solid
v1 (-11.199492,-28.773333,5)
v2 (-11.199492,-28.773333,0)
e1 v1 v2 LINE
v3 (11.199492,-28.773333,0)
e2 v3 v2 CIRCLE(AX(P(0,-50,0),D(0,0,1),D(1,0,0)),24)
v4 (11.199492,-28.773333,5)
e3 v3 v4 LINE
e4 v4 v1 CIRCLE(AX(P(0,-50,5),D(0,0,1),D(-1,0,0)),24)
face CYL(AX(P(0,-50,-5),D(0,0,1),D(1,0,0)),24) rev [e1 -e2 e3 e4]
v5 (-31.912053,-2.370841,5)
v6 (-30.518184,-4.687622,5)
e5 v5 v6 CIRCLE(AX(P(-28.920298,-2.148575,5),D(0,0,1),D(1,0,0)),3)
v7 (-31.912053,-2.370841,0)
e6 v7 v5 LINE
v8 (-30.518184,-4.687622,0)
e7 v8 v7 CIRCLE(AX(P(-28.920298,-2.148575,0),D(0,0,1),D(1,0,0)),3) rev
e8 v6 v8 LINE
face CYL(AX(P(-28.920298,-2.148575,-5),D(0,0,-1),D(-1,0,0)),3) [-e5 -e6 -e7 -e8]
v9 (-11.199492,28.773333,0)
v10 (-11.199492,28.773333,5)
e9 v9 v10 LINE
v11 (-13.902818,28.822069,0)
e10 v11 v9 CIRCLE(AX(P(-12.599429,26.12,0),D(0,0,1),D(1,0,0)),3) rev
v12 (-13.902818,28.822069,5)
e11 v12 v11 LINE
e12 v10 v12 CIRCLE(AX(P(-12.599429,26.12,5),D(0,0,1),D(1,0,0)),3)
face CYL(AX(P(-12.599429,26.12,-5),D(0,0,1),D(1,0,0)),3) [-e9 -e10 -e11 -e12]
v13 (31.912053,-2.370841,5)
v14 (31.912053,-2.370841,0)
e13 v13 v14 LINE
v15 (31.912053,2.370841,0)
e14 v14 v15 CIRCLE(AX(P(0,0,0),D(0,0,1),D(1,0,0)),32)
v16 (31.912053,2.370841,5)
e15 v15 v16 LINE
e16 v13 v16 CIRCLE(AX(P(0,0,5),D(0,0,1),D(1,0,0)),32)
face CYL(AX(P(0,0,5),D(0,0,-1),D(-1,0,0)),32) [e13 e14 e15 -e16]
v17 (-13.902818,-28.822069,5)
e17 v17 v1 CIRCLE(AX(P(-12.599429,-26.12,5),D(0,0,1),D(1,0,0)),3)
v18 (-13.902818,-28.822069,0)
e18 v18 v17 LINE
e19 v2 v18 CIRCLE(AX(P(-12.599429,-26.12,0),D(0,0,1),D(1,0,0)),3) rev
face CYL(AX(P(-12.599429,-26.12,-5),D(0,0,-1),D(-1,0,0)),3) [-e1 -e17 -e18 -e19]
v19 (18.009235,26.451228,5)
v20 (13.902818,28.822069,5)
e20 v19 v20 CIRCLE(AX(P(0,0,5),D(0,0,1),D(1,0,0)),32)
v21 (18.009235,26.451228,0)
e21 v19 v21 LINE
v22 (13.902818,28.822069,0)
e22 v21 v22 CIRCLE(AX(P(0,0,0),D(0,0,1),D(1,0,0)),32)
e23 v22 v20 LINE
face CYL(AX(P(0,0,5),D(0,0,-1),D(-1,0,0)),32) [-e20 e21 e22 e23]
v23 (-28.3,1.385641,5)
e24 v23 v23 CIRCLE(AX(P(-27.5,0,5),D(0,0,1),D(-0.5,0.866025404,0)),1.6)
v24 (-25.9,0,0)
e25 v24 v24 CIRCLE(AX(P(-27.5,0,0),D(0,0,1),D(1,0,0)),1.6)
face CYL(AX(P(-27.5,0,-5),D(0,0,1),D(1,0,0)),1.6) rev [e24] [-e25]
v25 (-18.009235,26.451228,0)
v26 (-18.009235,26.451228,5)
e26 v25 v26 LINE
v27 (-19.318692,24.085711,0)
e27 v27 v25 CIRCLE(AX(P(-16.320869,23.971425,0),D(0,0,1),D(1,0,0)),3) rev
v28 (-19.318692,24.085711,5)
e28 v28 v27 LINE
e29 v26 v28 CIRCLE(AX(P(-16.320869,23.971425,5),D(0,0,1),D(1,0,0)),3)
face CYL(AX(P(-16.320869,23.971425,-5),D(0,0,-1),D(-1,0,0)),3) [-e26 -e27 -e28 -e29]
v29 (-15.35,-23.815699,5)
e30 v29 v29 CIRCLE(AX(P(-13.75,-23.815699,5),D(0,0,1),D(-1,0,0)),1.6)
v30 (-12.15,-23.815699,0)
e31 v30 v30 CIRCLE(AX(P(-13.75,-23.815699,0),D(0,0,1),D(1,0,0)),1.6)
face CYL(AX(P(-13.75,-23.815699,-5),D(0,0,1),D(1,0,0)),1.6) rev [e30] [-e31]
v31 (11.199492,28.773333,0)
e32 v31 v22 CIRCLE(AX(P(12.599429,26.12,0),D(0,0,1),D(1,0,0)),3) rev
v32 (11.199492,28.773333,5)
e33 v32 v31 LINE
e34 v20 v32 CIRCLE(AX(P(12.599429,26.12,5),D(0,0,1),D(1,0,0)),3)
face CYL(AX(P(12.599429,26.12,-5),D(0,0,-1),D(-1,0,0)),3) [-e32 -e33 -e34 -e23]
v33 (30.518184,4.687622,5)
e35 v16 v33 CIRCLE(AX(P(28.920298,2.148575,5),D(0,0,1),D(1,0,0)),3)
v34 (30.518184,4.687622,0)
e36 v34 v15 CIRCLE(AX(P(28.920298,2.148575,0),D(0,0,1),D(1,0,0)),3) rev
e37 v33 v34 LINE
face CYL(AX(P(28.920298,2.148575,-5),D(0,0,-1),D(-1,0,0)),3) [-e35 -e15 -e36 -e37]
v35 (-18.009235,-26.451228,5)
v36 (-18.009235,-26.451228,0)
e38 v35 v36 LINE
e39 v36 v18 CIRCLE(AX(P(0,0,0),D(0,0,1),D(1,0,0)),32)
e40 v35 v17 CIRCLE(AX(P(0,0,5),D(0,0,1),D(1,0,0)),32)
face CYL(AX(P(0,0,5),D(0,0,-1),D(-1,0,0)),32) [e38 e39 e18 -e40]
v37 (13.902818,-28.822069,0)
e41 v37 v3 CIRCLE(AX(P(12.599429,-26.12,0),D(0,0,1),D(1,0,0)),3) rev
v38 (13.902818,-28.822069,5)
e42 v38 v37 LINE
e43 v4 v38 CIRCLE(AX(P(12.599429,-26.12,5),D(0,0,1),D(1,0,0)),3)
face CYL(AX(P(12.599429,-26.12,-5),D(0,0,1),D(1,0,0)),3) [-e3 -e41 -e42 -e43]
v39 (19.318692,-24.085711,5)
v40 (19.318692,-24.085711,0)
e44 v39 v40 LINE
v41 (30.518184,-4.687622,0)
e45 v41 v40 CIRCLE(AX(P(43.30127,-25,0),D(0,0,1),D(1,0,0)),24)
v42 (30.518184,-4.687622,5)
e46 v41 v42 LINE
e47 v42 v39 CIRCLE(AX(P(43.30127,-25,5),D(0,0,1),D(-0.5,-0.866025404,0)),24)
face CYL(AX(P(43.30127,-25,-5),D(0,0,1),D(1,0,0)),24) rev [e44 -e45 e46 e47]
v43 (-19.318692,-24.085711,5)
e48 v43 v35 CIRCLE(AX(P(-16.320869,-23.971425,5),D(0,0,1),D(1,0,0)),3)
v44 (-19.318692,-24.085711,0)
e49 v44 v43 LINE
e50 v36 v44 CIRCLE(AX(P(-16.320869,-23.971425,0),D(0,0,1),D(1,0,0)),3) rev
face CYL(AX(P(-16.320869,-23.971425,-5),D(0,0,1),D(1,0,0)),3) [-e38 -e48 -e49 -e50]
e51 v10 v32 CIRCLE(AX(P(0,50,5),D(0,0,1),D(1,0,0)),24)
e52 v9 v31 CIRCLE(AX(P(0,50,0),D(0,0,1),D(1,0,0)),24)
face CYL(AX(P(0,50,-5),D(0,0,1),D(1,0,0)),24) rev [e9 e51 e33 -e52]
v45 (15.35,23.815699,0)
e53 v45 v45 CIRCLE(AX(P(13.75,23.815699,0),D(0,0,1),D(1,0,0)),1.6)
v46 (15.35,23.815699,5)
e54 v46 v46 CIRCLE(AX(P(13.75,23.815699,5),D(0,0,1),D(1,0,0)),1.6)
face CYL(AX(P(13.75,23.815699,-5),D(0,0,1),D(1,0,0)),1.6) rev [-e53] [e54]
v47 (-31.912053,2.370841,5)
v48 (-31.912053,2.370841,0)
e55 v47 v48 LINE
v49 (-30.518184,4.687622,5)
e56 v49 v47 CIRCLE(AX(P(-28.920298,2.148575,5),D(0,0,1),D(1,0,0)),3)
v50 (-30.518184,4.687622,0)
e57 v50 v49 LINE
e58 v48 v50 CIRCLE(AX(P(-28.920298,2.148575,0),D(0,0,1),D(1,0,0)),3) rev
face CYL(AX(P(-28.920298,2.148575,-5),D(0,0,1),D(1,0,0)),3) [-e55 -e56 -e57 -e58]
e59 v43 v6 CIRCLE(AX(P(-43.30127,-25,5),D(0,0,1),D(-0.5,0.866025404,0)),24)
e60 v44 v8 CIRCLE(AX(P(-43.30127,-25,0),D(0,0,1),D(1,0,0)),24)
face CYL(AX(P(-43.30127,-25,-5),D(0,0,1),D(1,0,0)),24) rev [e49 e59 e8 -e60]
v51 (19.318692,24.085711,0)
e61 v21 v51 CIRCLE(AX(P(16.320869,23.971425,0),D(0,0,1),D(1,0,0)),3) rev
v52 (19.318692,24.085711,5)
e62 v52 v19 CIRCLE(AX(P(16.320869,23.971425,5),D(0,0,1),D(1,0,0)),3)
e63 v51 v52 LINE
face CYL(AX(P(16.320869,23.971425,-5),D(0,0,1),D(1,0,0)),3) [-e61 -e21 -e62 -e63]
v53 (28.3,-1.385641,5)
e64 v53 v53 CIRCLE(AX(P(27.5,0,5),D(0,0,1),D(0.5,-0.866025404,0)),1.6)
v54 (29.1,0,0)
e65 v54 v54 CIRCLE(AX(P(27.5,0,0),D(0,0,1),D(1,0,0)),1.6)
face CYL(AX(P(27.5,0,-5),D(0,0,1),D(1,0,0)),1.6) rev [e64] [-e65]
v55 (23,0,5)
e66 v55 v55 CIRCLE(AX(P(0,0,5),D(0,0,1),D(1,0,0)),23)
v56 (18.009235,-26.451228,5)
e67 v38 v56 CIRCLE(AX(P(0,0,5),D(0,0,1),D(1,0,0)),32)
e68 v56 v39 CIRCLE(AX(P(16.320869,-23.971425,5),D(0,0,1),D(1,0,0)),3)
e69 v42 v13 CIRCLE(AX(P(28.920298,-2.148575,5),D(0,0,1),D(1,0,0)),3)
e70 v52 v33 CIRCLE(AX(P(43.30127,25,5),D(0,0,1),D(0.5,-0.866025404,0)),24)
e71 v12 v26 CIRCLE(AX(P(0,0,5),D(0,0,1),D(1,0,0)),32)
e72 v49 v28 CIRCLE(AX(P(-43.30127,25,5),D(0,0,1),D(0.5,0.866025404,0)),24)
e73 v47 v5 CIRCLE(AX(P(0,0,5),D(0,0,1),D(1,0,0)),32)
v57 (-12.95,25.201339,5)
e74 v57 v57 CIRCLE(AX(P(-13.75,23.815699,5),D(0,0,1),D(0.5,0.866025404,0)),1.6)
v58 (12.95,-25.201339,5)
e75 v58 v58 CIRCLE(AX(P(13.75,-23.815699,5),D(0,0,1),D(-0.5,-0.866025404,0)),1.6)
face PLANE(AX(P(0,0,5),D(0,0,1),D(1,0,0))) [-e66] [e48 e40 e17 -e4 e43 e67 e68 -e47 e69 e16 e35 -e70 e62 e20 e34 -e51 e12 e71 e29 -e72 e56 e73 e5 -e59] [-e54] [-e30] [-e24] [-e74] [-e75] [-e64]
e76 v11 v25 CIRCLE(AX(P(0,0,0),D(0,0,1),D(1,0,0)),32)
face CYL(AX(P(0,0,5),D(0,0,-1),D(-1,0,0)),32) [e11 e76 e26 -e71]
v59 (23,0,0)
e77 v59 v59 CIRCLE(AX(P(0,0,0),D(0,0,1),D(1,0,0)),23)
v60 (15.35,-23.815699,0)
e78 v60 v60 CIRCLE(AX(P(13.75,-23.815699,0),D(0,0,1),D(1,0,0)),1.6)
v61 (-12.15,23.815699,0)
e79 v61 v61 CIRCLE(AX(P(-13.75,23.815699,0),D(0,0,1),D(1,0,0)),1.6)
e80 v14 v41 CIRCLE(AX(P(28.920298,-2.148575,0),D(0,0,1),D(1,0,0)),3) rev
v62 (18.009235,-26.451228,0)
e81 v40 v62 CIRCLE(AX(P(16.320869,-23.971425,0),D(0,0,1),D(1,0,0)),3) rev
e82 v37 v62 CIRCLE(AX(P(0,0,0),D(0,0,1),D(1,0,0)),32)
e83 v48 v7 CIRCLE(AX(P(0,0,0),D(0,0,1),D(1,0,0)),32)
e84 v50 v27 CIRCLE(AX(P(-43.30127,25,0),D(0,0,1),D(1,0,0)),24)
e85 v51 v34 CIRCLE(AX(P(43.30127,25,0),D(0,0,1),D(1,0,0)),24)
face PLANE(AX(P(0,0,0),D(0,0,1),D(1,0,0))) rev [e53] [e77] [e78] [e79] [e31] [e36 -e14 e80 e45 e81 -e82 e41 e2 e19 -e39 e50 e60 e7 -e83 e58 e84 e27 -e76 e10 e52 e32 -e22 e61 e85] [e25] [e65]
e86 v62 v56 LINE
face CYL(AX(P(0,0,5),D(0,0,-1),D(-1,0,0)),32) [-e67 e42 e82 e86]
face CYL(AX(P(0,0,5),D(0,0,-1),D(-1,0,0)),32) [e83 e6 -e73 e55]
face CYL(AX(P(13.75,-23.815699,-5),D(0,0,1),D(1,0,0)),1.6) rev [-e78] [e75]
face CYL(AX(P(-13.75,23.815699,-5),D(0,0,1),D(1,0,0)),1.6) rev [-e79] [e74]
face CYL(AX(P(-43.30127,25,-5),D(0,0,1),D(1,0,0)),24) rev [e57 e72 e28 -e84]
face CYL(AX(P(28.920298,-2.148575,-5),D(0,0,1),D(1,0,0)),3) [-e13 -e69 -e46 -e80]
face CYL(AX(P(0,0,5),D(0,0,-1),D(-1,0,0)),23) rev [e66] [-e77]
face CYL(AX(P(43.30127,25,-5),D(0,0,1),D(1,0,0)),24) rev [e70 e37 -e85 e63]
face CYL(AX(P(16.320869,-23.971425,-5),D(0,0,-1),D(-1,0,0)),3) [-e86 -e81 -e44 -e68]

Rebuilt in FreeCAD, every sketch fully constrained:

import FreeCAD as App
import Part
import Sketcher

V = App.Vector
Q = App.Units.Quantity


def edges_at(feature, points):
    """Names of the edges that pass closest to the given points."""
    edges = feature.Shape.Edges
    near = lambda p: min(range(len(edges)), key=lambda i: edges[i].distToShape(Part.Vertex(*p))[0])
    return sorted({f"Edge{near(p) + 1}" for p in points})

doc = App.newDocument("Part")
body = doc.addObject("PartDesign::Body", "Body")

# Sketch on XY plane
sketch1 = body.newObject("Sketcher::SketchObject", "Sketch")
sketch1.AttachmentSupport = (doc.getObject("XY_Plane"), [""])
sketch1.MapMode = "FlatFace"
sketch1.addGeometry([
    Part.Circle(V(0, 0, 0), V(0, 0, 1), 32),
    Part.Circle(V(0, 0, 0), V(0, 0, 1), 23),
], False)
sketch1.addConstraint([
    Sketcher.Constraint("Coincident", 0, 3, -1, 1),
    Sketcher.Constraint("Coincident", 1, 3, -1, 1),
    Sketcher.Constraint("Diameter", 0, Q("64 mm")),
    Sketcher.Constraint("Diameter", 1, Q("46 mm")),
])
pad1 = body.newObject("PartDesign::Pad", "Pad")
pad1.Profile = sketch1
pad1.Length = 5

# Sketch on XY plane
sketch2 = body.newObject("Sketcher::SketchObject", "Sketch001")
sketch2.AttachmentSupport = (doc.getObject("XY_Plane"), [""])
sketch2.MapMode = "FlatFace"
sketch2.AttachmentOffset = App.Placement(V(0, 0, 5), App.Rotation())
sketch2.addGeometry(Part.Circle(V(0, 50, 0), V(0, 0, 1), 24), False)
sketch2.addConstraint([
    Sketcher.Constraint("PointOnObject", 0, 3, -2),
    Sketcher.Constraint("Diameter", 0, Q("48 mm")),
    Sketcher.Constraint("DistanceY", -1, 1, 0, 3, Q("50 mm")),
])
pocket1 = body.newObject("PartDesign::Pocket", "Pocket")
pocket1.Profile = sketch2
pocket1.Length = 10
doc.recompute()

polarpattern = body.newObject("PartDesign::PolarPattern", "PolarPattern")
polarpattern.Originals = [pocket1]
polarpattern.Axis = (doc.getObject("Z_Axis"), [""])
polarpattern.Angle = 360
polarpattern.Occurrences = 6
body.Tip = polarpattern

# Sketch on XY plane
sketch3 = body.newObject("Sketcher::SketchObject", "Sketch002")
sketch3.AttachmentSupport = (doc.getObject("XY_Plane"), [""])
sketch3.MapMode = "FlatFace"
sketch3.AttachmentOffset = App.Placement(V(0, 0, 5), App.Rotation())
sketch3.addGeometry(Part.Circle(V(13.8, 23.8, 0), V(0, 0, 1), 1.6), False)
sketch3.addConstraint([
    Sketcher.Constraint("Diameter", 0, Q("3.2 mm")),
    Sketcher.Constraint("DistanceX", -1, 1, 0, 3, Q("13.75 mm")),
    Sketcher.Constraint("DistanceY", -1, 1, 0, 3, Q("23.815699 mm")),
])
pocket2 = body.newObject("PartDesign::Pocket", "Pocket001")
pocket2.Profile = sketch3
pocket2.Length = 10
doc.recompute()

polarpattern2 = body.newObject("PartDesign::PolarPattern", "PolarPattern001")
polarpattern2.Originals = [pocket2]
polarpattern2.Axis = (doc.getObject("Z_Axis"), [""])
polarpattern2.Angle = 360
polarpattern2.Occurrences = 6
body.Tip = polarpattern2
doc.recompute()

fillet = body.newObject("PartDesign::Fillet", "Fillet")
fillet.Base = (polarpattern2, edges_at(polarpattern2, [
    (-12.447, 29.48, 2.5),
    (12.447, 29.48, 2.5),
    (-31.754, 3.961, 2.5),
    (-19.307, 25.519, 2.5),
    (19.307, 25.519, 2.5),
    (31.754, 3.961, 2.5),
    (31.754, -3.961, 2.5),
    (19.307, -25.519, 2.5),
    (-19.307, -25.519, 2.5),
    (-31.754, -3.961, 2.5),
    (12.447, -29.48, 2.5),
    (-12.447, -29.48, 2.5),
]))
fillet.Radius = 3

doc.recompute()
